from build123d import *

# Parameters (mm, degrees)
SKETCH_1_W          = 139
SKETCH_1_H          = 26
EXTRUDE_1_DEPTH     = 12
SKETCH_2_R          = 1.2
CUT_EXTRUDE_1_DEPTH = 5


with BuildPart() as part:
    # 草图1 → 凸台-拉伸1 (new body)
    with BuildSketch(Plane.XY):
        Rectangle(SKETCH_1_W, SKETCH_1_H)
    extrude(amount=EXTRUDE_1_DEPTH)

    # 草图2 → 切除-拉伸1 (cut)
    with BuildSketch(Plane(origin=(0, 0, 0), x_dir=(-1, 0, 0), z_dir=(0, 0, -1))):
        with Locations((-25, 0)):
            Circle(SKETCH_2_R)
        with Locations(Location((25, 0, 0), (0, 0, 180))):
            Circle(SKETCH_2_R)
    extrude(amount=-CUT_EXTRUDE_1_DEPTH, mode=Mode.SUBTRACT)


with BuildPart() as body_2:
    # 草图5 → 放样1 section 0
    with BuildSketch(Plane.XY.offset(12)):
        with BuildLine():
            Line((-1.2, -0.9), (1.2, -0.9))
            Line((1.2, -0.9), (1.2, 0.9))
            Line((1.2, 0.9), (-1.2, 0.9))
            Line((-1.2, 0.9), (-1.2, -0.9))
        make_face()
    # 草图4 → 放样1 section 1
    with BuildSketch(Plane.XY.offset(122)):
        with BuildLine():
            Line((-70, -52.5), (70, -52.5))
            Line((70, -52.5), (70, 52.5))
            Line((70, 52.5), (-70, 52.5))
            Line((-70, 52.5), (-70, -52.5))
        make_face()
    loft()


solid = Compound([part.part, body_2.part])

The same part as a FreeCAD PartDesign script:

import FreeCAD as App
import Part
import Sketcher


def add_polygon(sketch, points):
    """Adds a closed chain of lines whose ends are joined by coincident constraints."""
    first, n = sketch.GeometryCount, len(points)
    for a, b in zip(points, points[1:] + points[:1]):
        sketch.addGeometry(Part.LineSegment(App.Vector(*a, 0), App.Vector(*b, 0)), False)
    for i in range(n):
        sketch.addConstraint(Sketcher.Constraint("Coincident", first + i, 2, first + (i + 1) % n, 1))

doc = App.newDocument("Part")
body = doc.addObject("PartDesign::Body", "Body")

# Sketch on XY plane
sketch1 = body.newObject("Sketcher::SketchObject", "Sketch")
sketch1.AttachmentSupport = (doc.getObject("XY_Plane"), [""])
sketch1.MapMode = "FlatFace"
add_polygon(sketch1, [(-70, 13), (-70, -13), (70, -13), (70, 13)])  # lines 0-3
sketch1.addConstraint(Sketcher.Constraint("Vertical", 0))
sketch1.addConstraint(Sketcher.Constraint("Horizontal", 1))
sketch1.addConstraint(Sketcher.Constraint("Vertical", 2))
sketch1.addConstraint(Sketcher.Constraint("Horizontal", 3))
sketch1.addConstraint(Sketcher.Constraint("Symmetric", 0, 2, 2, 2, -1, 1))
sketch1.addConstraint(Sketcher.Constraint("DistanceX", 1, 1, 1, 2, 139.0))
sketch1.addConstraint(Sketcher.Constraint("DistanceY", 0, 2, 0, 1, 26.0))
pad1 = body.newObject("PartDesign::Pad", "Pad")
pad1.Profile = sketch1
pad1.Length = 12

# Sketch on XY plane
sketch2 = body.newObject("Sketcher::SketchObject", "Sketch001")
sketch2.AttachmentSupport = (doc.getObject("XY_Plane"), [""])
sketch2.MapMode = "FlatFace"
sketch2.addGeometry(Part.Circle(App.Vector(25, 0, 0), App.Vector(0, 0, 1), 1.2), False)
sketch2.addGeometry(Part.Circle(App.Vector(-25, 0, 0), App.Vector(0, 0, 1), 1.2), False)
sketch2.addConstraint(Sketcher.Constraint("Equal", 0, 1))
sketch2.addConstraint(Sketcher.Constraint("Symmetric", 0, 3, 1, 3, -1, 1))
sketch2.addConstraint(Sketcher.Constraint("PointOnObject", 0, 3, -1))
sketch2.addConstraint(Sketcher.Constraint("Diameter", 0, 2.4))
sketch2.addConstraint(Sketcher.Constraint("DistanceX", -1, 1, 0, 3, 25.0))
pocket1 = body.newObject("PartDesign::Pocket", "Pocket")
pocket1.Profile = sketch2
pocket1.Length = 5
pocket1.Reversed = True
body2 = doc.addObject("PartDesign::Body", "Body001")

# Sketch on XY plane
sketch3 = body2.newObject("Sketcher::SketchObject", "Sketch002")
sketch3.AttachmentSupport = (doc.getObject("XY_Plane001"), [""])
sketch3.MapMode = "FlatFace"
sketch3.AttachmentOffset = App.Placement(App.Vector(0, 0, 12), App.Rotation())
add_polygon(sketch3, [(-1.2, -0.9), (1.2, -0.9), (1.2, 0.9), (-1.2, 0.9)])  # lines 0-3
sketch3.addConstraint(Sketcher.Constraint("Horizontal", 0))
sketch3.addConstraint(Sketcher.Constraint("Vertical", 1))
sketch3.addConstraint(Sketcher.Constraint("Horizontal", 2))
sketch3.addConstraint(Sketcher.Constraint("Vertical", 3))
sketch3.addConstraint(Sketcher.Constraint("Symmetric", 0, 2, 2, 2, -1, 1))
sketch3.addConstraint(Sketcher.Constraint("DistanceX", 0, 1, 0, 2, 2.4))
sketch3.addConstraint(Sketcher.Constraint("DistanceY", 1, 1, 1, 2, 1.8))

# Sketch on XY plane
sketch4 = body2.newObject("Sketcher::SketchObject", "Sketch003")
sketch4.AttachmentSupport = (doc.getObject("XY_Plane001"), [""])
sketch4.MapMode = "FlatFace"
sketch4.AttachmentOffset = App.Placement(App.Vector(0, 0, 122), App.Rotation())
add_polygon(sketch4, [(-70, -52), (70, -52), (70, 52), (-70, 52)])  # lines 0-3
sketch4.addConstraint(Sketcher.Constraint("Horizontal", 0))
sketch4.addConstraint(Sketcher.Constraint("Vertical", 1))
sketch4.addConstraint(Sketcher.Constraint("Horizontal", 2))
sketch4.addConstraint(Sketcher.Constraint("Vertical", 3))
sketch4.addConstraint(Sketcher.Constraint("Symmetric", 0, 2, 2, 2, -1, 1))
sketch4.addConstraint(Sketcher.Constraint("DistanceX", 0, 1, 0, 2, 140.0))
sketch4.addConstraint(Sketcher.Constraint("DistanceY", 1, 1, 1, 2, 105.0))

additiveloft = body2.newObject("PartDesign::AdditiveLoft", "AdditiveLoft")
additiveloft.Profile = sketch3
additiveloft.Sections = [sketch4]

doc.recompute()
